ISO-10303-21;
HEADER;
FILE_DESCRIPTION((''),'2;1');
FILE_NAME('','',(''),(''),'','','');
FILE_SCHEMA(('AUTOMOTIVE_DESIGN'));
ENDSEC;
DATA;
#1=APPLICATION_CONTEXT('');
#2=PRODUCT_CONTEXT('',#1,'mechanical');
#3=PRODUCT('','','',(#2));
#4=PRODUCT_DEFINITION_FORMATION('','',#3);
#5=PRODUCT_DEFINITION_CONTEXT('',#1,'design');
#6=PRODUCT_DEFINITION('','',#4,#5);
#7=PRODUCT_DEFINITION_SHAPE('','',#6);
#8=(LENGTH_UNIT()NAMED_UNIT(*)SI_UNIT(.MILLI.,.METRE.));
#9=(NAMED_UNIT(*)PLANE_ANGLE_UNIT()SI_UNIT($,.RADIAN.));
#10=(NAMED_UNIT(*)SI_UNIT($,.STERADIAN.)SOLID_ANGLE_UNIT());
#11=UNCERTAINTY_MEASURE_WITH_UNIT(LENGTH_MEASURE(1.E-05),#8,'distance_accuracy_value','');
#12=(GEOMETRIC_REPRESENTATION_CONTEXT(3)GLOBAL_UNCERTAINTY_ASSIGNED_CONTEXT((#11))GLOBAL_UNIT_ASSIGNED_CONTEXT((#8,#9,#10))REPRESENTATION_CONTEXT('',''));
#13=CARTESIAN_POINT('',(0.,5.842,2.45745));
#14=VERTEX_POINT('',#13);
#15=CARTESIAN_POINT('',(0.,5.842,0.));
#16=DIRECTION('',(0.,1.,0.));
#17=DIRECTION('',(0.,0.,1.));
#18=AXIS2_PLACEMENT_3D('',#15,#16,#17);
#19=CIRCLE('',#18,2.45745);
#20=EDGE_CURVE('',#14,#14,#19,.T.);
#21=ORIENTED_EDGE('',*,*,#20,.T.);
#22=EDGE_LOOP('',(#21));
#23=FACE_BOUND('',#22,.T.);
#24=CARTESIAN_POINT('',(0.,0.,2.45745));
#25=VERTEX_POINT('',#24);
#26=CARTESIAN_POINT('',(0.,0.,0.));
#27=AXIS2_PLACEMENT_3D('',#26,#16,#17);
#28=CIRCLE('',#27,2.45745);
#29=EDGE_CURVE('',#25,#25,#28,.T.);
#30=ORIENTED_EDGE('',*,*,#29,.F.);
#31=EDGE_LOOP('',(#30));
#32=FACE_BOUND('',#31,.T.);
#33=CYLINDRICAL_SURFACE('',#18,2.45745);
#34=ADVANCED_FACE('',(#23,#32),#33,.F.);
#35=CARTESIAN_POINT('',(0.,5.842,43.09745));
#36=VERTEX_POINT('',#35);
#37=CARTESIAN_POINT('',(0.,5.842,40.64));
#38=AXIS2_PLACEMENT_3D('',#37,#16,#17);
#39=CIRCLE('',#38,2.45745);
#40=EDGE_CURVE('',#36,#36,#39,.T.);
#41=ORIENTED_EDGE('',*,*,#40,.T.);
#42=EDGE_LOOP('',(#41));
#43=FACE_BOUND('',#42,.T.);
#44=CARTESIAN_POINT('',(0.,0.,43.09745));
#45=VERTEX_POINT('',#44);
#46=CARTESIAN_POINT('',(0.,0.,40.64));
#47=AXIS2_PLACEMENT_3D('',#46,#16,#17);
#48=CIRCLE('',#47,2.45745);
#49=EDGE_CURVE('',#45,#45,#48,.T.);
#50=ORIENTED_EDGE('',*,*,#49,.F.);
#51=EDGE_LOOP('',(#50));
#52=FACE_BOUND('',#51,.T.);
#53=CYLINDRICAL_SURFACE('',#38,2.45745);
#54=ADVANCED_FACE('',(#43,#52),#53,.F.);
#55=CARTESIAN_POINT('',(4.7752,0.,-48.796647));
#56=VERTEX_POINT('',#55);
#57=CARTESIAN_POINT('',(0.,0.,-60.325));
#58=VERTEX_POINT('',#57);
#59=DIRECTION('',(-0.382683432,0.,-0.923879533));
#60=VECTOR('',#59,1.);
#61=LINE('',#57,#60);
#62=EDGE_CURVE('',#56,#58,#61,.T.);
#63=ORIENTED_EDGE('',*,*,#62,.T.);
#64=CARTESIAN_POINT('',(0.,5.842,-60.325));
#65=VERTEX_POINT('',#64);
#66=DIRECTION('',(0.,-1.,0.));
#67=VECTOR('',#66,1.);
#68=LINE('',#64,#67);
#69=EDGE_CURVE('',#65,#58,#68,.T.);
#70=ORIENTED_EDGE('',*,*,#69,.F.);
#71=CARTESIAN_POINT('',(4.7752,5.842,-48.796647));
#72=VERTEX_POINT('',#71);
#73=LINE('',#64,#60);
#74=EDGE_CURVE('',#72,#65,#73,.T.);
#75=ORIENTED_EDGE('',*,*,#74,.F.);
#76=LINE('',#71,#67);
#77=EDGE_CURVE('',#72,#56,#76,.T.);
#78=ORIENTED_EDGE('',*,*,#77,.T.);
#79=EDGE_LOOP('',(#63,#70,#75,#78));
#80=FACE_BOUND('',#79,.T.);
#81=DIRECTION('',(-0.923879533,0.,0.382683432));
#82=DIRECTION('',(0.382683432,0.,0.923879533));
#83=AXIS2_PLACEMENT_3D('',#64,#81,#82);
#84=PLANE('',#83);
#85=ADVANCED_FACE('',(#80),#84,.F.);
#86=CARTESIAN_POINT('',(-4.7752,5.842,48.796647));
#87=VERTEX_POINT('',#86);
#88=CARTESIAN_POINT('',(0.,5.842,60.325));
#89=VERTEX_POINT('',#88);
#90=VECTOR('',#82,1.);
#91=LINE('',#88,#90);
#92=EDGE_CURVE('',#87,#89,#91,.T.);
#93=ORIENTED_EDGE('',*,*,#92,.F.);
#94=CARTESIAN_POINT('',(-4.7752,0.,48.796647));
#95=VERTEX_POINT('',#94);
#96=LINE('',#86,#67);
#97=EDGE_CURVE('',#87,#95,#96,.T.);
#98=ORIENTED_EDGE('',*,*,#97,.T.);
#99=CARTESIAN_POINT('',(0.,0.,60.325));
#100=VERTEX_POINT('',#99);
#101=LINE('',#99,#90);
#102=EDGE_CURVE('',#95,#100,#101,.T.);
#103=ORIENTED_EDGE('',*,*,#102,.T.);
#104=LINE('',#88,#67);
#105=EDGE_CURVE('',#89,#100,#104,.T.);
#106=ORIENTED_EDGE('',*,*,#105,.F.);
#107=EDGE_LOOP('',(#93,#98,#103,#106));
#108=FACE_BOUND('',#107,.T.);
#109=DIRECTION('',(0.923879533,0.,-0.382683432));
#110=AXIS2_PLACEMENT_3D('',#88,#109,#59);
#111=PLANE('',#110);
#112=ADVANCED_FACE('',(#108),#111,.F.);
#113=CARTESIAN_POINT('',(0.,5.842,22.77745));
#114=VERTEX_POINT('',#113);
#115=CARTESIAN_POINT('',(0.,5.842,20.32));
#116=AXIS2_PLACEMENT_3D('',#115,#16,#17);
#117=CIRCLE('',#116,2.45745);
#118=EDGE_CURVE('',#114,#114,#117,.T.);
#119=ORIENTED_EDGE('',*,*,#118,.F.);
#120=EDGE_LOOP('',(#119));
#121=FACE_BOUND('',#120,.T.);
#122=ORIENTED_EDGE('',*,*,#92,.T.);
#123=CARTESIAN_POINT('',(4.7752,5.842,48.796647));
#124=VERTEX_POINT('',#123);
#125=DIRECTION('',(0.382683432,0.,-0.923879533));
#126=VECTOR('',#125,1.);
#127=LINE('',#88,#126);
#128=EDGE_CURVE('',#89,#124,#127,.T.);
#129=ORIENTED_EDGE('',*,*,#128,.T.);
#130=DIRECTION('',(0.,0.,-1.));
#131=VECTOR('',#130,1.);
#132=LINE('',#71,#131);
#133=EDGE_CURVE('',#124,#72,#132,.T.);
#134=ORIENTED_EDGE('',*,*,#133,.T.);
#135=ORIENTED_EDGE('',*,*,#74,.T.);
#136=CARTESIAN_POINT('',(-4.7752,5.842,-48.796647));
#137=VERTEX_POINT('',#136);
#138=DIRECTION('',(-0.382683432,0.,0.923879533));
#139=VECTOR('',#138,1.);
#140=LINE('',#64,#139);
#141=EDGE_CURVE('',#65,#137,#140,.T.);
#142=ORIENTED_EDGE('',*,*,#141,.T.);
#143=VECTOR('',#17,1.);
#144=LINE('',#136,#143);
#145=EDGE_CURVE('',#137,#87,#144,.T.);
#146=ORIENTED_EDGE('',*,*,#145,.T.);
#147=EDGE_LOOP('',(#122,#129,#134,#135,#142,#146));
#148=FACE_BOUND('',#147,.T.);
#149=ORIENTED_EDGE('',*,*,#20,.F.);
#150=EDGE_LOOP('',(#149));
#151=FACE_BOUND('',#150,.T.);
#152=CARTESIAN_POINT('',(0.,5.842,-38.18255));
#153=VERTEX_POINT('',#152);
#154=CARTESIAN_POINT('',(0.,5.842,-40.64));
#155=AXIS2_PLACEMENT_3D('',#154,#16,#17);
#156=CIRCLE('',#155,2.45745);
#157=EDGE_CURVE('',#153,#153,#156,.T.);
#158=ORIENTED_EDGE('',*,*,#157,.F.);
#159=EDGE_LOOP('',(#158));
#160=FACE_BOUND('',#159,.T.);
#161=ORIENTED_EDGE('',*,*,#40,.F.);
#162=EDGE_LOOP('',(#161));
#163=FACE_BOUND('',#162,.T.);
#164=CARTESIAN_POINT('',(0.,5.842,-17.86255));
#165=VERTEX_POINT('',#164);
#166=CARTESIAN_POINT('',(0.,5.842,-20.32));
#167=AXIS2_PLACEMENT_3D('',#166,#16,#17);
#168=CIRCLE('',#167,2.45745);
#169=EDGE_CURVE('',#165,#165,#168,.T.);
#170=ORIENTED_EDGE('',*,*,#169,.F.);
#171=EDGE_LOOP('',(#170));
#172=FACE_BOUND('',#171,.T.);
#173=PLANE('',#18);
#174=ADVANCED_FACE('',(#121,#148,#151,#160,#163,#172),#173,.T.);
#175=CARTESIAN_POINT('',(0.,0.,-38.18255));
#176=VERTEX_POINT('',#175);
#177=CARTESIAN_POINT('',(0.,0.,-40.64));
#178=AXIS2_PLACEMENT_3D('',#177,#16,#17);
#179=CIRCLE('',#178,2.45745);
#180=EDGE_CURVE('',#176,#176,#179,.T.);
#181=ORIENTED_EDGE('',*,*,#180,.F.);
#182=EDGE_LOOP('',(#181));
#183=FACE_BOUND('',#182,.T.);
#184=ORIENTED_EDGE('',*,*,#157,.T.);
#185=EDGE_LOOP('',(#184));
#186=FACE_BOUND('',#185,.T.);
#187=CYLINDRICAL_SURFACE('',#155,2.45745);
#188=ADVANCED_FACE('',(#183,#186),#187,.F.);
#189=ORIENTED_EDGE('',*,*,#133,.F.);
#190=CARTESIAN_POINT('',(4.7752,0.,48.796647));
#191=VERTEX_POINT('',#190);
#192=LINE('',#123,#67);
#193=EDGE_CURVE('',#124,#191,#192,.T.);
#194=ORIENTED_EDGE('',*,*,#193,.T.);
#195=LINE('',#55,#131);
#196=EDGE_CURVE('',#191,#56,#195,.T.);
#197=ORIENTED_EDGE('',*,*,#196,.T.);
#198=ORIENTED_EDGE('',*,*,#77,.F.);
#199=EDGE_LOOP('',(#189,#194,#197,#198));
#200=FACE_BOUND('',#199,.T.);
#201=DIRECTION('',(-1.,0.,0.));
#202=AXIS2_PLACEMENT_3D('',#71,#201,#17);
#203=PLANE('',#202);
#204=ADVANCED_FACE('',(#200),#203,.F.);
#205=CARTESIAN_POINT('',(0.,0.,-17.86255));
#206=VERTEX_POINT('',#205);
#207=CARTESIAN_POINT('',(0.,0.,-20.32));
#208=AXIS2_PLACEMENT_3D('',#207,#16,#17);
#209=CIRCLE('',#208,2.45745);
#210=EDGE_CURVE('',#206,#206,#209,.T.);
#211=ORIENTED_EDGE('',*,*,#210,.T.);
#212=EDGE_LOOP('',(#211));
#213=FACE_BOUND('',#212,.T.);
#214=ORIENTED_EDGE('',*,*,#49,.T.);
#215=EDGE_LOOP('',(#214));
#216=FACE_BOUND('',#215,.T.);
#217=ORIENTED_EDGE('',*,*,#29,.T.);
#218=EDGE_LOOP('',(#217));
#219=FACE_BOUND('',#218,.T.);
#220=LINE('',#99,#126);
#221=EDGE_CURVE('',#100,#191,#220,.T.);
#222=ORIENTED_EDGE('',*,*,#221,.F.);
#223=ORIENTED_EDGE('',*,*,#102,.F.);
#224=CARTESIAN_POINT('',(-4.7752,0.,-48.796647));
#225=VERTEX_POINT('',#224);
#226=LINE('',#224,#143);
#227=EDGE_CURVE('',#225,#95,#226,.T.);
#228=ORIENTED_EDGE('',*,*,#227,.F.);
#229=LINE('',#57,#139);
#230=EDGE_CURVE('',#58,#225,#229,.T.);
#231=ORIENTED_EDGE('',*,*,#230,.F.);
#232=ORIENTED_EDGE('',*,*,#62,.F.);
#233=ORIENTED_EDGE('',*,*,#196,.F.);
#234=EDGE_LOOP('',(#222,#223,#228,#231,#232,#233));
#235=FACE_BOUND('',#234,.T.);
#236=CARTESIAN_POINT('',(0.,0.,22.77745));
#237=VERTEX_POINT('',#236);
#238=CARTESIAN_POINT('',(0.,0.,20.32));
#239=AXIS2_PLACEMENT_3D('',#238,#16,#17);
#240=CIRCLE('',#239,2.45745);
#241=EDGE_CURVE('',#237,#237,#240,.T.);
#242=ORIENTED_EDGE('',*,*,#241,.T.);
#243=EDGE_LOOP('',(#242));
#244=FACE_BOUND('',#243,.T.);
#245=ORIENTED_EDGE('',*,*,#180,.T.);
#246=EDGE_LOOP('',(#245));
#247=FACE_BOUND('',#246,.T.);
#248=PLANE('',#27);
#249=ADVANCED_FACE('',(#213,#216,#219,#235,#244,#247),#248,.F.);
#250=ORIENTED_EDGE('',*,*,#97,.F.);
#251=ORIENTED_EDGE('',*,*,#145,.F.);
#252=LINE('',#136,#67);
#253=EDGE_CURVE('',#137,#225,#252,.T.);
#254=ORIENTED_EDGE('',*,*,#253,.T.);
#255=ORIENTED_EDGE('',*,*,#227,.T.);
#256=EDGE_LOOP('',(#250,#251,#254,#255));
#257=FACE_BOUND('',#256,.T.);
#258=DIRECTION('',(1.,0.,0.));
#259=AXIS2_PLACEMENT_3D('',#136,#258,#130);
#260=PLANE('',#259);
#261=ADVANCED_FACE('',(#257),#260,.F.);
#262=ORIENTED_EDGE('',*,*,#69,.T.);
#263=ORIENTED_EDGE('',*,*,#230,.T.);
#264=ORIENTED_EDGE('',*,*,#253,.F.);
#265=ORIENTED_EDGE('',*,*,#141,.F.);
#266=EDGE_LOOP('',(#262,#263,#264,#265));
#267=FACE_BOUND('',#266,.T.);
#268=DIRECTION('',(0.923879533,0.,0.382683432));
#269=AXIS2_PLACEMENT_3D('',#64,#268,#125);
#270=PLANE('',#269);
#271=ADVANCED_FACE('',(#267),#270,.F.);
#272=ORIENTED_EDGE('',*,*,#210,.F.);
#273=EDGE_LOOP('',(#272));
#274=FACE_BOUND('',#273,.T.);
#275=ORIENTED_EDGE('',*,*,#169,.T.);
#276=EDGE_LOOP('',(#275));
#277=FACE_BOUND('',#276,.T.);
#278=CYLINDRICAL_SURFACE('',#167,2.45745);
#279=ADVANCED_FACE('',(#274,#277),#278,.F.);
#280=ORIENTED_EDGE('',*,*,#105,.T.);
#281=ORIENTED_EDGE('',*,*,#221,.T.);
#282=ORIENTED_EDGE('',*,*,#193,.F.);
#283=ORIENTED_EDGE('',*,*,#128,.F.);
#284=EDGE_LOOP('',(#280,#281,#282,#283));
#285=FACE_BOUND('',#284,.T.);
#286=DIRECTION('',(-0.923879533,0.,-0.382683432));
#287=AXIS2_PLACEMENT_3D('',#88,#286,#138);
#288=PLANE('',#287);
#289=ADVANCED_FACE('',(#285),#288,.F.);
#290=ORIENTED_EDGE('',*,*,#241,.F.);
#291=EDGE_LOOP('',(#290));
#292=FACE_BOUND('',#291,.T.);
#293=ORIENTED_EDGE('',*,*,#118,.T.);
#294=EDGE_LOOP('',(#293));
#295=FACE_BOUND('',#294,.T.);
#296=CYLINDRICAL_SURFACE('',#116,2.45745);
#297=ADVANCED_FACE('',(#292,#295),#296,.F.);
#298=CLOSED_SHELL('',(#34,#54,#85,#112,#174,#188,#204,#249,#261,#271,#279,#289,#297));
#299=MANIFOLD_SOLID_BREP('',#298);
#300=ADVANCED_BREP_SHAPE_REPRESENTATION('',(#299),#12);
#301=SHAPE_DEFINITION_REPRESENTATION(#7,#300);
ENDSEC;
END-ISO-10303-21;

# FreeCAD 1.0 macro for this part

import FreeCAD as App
import Part
import Sketcher

V = App.Vector
Q = App.Units.Quantity

doc = App.newDocument("Part")
body = doc.addObject("PartDesign::Body", "Body")

# Sketch on XZ plane
sketch1 = body.newObject("Sketcher::SketchObject", "Sketch")
sketch1.AttachmentSupport = (doc.getObject("XZ_Plane"), [""])
sketch1.MapMode = "FlatFace"
sketch1.addGeometry(Part.LineSegment(V(0, -60, 0), V(-5, -49, 0)), False)
sketch1.addGeometry(Part.LineSegment(V(-5, -49, 0), V(-5, 49, 0)), False)
sketch1.addGeometry(Part.LineSegment(V(-5, 49, 0), V(0, 60, 0)), False)
sketch1.addGeometry(Part.LineSegment(V(0, 60, 0), V(5, 49, 0)), False)
sketch1.addGeometry(Part.LineSegment(V(5, 49, 0), V(5, -49, 0)), False)
sketch1.addGeometry(Part.LineSegment(V(5, -49, 0), V(0, -60, 0)), False)
sketch1.addConstraint(Sketcher.Constraint("Coincident", 0, 2, 1, 1))
sketch1.addConstraint(Sketcher.Constraint("Coincident", 1, 2, 2, 1))
sketch1.addConstraint(Sketcher.Constraint("Coincident", 2, 2, 3, 1))
sketch1.addConstraint(Sketcher.Constraint("Coincident", 3, 2, 4, 1))
sketch1.addConstraint(Sketcher.Constraint("Coincident", 4, 2, 5, 1))
sketch1.addConstraint(Sketcher.Constraint("Coincident", 5, 2, 0, 1))
sketch1.addConstraint(Sketcher.Constraint("Vertical", 1))
sketch1.addConstraint(Sketcher.Constraint("Vertical", 4))
sketch1.addConstraint(Sketcher.Constraint("Symmetric", 0, 2, 3, 2, -1, 1))
sketch1.addConstraint(Sketcher.Constraint("Symmetric", 2, 2, 5, 2, -1, 1))
sketch1.addConstraint(Sketcher.Constraint("PointOnObject", 2, 2, -2))
sketch1.addConstraint(Sketcher.Constraint("Parallel", 2, 5))
sketch1.addConstraint(Sketcher.Constraint("Horizontal", 1, 2, 3, 2))
sketch1.addConstraint(Sketcher.Constraint("Angle", 0, Q("112.5 deg")))
sketch1.addConstraint(Sketcher.Constraint("DistanceY", 5, 2, 2, 2, Q("4.75 in")))
sketch1.addConstraint(Sketcher.Constraint("DistanceX", 0, 2, -1, 1, Q("0.188 in")))
pad1 = body.newObject("PartDesign::Pad", "Pad")
pad1.Profile = sketch1
pad1.Length = Q("0.23 in")
pad1.Reversed = True

# Sketch on XZ plane
sketch2 = body.newObject("Sketcher::SketchObject", "Sketch001")
sketch2.AttachmentSupport = (doc.getObject("XZ_Plane"), [""])
sketch2.MapMode = "FlatFace"
sketch2.AttachmentOffset = App.Placement(V(0, 0, -0.23 * 25.4), App.Rotation())
sketch2.addGeometry(Part.Circle(V(0, -20.3, 0), V(0, 0, 1), 2.5), False)
sketch2.addGeometry(Part.Circle(V(0, -40.6, 0), V(0, 0, 1), 2.5), False)
sketch2.addGeometry(Part.Circle(V(0, 0, 0), V(0, 0, 1), 2.5), False)
sketch2.addGeometry(Part.Circle(V(0, 20.3, 0), V(0, 0, 1), 2.5), False)
sketch2.addGeometry(Part.Circle(V(0, 40.6, 0), V(0, 0, 1), 2.5), False)
sketch2.addConstraint(Sketcher.Constraint("Coincident", 2, 3, -1, 1))
sketch2.addConstraint(Sketcher.Constraint("Equal", 0, 1))
sketch2.addConstraint(Sketcher.Constraint("Equal", 1, 2))
sketch2.addConstraint(Sketcher.Constraint("Equal", 2, 3))
sketch2.addConstraint(Sketcher.Constraint("Equal", 3, 4))
sketch2.addConstraint(Sketcher.Constraint("Symmetric", 0, 3, 3, 3, -1, 1))
sketch2.addConstraint(Sketcher.Constraint("Symmetric", 1, 3, 4, 3, -1, 1))
sketch2.addConstraint(Sketcher.Constraint("PointOnObject", 0, 3, -2))
sketch2.addConstraint(Sketcher.Constraint("PointOnObject", 1, 3, -2))
sketch2.addConstraint(Sketcher.Constraint("Diameter", 0, Q("0.1935 in")))
sketch2.addConstraint(Sketcher.Constraint("DistanceY", 0, 3, -1, 1, Q("0.8 in")))
sketch2.addConstraint(Sketcher.Constraint("DistanceY", 1, 3, -1, 1, Q("1.6 in")))
doc.recompute()
hole = body.newObject("PartDesign::Hole", "Hole")
hole.Profile = sketch2
hole.ThreadType = "None"
hole.Diameter = Q("0.1935 in")
hole.DepthType = "ThroughAll"
hole.Reversed = True

doc.recompute()
